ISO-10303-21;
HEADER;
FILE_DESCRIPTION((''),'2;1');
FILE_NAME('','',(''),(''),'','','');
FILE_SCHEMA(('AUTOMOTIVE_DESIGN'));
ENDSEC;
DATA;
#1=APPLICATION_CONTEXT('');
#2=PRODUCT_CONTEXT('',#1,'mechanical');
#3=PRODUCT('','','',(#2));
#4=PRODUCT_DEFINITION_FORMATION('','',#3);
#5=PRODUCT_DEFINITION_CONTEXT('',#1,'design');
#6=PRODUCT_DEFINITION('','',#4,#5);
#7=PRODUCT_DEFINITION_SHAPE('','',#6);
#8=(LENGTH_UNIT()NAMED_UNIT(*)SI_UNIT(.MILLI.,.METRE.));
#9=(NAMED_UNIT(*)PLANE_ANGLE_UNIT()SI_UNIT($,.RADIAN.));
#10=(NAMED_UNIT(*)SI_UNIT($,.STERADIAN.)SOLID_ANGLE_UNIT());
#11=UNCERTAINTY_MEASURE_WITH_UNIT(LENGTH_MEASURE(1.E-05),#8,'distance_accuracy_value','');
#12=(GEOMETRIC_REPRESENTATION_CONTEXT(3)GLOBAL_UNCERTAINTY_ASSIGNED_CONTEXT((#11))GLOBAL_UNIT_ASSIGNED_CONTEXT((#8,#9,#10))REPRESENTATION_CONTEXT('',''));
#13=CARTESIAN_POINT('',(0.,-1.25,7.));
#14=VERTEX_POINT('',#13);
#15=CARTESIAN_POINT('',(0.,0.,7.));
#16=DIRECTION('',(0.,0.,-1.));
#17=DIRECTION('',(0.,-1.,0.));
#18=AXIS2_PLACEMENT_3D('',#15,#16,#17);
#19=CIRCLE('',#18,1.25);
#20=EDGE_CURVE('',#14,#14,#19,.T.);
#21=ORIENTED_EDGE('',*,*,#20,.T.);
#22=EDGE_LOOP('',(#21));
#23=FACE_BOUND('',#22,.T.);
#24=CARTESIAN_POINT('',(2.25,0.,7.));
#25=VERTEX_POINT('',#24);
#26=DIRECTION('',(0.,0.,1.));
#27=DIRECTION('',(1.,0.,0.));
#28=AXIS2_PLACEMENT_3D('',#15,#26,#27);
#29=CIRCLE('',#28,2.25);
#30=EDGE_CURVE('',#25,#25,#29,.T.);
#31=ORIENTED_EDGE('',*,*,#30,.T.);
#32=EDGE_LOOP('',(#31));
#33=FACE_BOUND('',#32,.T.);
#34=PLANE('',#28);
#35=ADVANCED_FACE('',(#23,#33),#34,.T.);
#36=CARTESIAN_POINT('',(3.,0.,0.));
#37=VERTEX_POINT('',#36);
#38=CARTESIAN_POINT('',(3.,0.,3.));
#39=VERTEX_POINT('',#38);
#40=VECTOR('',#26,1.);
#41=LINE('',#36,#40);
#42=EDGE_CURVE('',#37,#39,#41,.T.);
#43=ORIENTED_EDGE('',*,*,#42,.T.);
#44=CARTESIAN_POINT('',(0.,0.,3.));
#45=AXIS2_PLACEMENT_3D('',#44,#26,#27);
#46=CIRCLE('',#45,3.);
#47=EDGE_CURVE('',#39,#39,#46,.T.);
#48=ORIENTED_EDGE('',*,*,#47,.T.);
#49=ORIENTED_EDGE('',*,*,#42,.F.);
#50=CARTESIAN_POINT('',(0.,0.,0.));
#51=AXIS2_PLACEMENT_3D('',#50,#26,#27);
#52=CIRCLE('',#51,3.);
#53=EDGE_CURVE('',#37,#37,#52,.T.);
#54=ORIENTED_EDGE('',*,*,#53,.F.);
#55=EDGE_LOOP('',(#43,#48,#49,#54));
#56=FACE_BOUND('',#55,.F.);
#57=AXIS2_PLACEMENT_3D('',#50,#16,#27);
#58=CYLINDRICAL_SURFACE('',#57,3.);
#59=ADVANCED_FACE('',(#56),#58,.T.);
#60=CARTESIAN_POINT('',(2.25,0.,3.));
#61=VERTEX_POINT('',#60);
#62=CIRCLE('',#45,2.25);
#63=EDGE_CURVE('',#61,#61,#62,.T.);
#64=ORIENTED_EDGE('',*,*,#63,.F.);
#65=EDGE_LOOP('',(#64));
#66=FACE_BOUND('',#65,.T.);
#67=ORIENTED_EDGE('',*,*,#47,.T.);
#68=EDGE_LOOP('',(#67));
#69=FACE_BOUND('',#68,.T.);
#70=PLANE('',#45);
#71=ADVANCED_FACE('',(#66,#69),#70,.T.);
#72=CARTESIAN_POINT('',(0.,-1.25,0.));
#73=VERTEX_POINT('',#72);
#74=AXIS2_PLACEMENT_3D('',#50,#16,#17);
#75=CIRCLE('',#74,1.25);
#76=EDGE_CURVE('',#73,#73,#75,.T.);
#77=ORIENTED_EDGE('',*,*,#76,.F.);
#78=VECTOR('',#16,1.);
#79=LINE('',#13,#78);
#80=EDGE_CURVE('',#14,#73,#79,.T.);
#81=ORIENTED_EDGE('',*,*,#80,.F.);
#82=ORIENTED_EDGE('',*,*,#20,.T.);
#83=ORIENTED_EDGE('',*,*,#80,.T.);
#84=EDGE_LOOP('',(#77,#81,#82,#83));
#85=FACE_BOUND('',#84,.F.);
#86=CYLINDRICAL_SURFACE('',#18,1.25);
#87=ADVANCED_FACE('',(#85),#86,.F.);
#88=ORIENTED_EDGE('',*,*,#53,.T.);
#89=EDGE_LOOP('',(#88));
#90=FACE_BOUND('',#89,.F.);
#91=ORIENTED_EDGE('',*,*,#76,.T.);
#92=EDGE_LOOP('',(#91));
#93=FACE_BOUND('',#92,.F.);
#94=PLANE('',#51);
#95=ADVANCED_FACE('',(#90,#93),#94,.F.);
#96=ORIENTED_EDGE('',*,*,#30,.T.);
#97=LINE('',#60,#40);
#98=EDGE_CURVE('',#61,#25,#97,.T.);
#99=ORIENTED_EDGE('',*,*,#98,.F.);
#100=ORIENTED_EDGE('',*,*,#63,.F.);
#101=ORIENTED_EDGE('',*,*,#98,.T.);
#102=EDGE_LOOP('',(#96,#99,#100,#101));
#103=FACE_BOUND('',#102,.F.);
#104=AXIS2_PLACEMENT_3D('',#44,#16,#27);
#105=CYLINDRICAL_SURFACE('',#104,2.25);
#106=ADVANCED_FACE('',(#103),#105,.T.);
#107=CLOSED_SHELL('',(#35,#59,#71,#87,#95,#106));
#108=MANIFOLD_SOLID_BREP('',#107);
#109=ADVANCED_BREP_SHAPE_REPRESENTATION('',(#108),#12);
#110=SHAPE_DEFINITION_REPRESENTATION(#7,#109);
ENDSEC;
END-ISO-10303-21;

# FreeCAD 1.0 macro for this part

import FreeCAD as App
import Part
import Sketcher

V = App.Vector
Q = App.Units.Quantity

doc = App.newDocument("Part")
body = doc.addObject("PartDesign::Body", "Body")

# Sketch on XY plane
sketch1 = body.newObject("Sketcher::SketchObject", "Sketch")
sketch1.AttachmentSupport = (doc.getObject("XY_Plane"), [""])
sketch1.MapMode = "FlatFace"
sketch1.addGeometry(Part.Circle(V(0, 0, 0), V(0, 0, 1), 3), False)
sketch1.addConstraint([
    Sketcher.Constraint("Coincident", 0, 3, -1, 1),
    Sketcher.Constraint("Diameter", 0, Q("6 mm")),
])
pad1 = body.newObject("PartDesign::Pad", "Pad")
pad1.Profile = sketch1
pad1.Length = 3

# Sketch on XY plane
sketch2 = body.newObject("Sketcher::SketchObject", "Sketch001")
sketch2.AttachmentSupport = (doc.getObject("XY_Plane"), [""])
sketch2.MapMode = "FlatFace"
sketch2.AttachmentOffset = App.Placement(V(0, 0, 3), App.Rotation())
sketch2.addGeometry(Part.Circle(V(0, 0, 0), V(0, 0, 1), 2.2), False)
sketch2.addConstraint([
    Sketcher.Constraint("Coincident", 0, 3, -1, 1),
    Sketcher.Constraint("Diameter", 0, Q("4.5 mm")),
])
pad2 = body.newObject("PartDesign::Pad", "Pad001")
pad2.Profile = sketch2
pad2.Length = 4

# Sketch on XY plane
sketch3 = body.newObject("Sketcher::SketchObject", "Sketch002")
sketch3.AttachmentSupport = (doc.getObject("XY_Plane"), [""])
sketch3.MapMode = "FlatFace"
sketch3.AttachmentOffset = App.Placement(V(0, 0, 7), App.Rotation())
sketch3.addGeometry(Part.Circle(V(0, 0, 0), V(0, 0, 1), 1.2), False)
sketch3.addConstraint([
    Sketcher.Constraint("Coincident", 0, 3, -1, 1),
    Sketcher.Constraint("Diameter", 0, Q("2.5 mm")),
])
doc.recompute()
hole = body.newObject("PartDesign::Hole", "Hole")
hole.Profile = sketch3
hole.ThreadType = "None"
hole.Diameter = 2.5
hole.DepthType = "ThroughAll"

doc.recompute()
